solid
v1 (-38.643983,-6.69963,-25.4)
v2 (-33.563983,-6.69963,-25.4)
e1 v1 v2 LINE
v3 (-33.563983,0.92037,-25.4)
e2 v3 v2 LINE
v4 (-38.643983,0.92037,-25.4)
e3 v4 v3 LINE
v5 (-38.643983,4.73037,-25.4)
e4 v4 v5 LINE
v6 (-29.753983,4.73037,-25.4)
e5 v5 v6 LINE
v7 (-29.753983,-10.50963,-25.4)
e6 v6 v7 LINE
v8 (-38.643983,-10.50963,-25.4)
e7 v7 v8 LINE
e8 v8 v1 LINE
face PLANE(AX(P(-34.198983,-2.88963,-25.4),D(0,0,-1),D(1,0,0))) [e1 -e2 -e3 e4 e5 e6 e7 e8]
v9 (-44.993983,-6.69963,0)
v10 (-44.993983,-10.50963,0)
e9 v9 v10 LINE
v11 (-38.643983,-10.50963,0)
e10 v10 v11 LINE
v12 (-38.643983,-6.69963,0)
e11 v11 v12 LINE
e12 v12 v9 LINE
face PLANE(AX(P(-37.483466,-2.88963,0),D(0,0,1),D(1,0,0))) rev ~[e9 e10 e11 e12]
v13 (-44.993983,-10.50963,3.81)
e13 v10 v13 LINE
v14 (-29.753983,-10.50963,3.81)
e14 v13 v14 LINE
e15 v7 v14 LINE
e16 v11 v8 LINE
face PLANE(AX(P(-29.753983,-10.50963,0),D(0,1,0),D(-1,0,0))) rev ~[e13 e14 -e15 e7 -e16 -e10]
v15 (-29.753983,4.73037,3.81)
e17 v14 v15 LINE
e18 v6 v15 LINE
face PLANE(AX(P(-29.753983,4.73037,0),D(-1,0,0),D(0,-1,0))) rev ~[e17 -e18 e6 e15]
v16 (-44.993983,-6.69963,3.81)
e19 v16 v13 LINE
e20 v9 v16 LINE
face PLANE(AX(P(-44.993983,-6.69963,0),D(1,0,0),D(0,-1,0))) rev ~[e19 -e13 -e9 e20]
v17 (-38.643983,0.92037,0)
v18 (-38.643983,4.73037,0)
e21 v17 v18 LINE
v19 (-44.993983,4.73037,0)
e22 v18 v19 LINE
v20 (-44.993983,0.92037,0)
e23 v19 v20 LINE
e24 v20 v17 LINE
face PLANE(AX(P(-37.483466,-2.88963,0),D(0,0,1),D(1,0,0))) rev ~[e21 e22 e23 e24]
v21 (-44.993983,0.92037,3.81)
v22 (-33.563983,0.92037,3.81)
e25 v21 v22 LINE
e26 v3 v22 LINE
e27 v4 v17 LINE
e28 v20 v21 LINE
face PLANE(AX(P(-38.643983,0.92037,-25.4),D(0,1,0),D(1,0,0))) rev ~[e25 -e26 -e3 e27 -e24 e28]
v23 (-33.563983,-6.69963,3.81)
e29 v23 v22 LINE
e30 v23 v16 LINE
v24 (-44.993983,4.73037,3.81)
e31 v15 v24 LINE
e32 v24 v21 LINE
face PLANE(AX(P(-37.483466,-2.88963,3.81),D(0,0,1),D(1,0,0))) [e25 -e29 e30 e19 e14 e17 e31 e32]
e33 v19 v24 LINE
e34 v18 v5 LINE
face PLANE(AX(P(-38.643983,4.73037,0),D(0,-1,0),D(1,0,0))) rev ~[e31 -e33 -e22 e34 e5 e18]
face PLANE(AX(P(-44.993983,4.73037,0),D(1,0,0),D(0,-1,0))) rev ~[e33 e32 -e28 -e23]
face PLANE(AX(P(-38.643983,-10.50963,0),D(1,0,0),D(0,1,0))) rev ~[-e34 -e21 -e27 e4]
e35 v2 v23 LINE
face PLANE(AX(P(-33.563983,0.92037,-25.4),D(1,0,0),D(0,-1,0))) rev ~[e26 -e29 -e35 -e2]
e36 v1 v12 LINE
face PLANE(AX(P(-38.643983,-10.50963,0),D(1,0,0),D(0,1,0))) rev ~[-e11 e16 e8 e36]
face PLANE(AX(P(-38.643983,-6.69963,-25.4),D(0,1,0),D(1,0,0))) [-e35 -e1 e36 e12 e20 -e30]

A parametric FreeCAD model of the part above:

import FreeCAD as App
import Part
import Sketcher
Q = App.Units.Quantity


def add_polygon(sketch, points):
    """Adds a closed chain of lines whose ends are joined by coincident constraints."""
    first, n = sketch.GeometryCount, len(points)
    for a, b in zip(points, points[1:] + points[:1]):
        sketch.addGeometry(Part.LineSegment(App.Vector(*a, 0), App.Vector(*b, 0)), False)
    for i in range(n):
        sketch.addConstraint(Sketcher.Constraint("Coincident", first + i, 2, first + (i + 1) % n, 1))

doc = App.newDocument("Part")
body = doc.addObject("PartDesign::Body", "Body")

# Sketch on XY plane
sketch1 = body.newObject("Sketcher::SketchObject", "Sketch")
sketch1.AttachmentSupport = (doc.getObject("XY_Plane"), [""])
sketch1.MapMode = "FlatFace"
add_polygon(sketch1, [(-29.8, 4.7), (-45, 4.7), (-45, 0.9), (-38.6, 0.9), (-38.6, -6.7), (-45, -6.7), (-45, -10.5), (-29.8, -10.5)])  # lines 0-7
sketch1.addConstraint(Sketcher.Constraint("Horizontal", 0))
sketch1.addConstraint(Sketcher.Constraint("Vertical", 1))
sketch1.addConstraint(Sketcher.Constraint("Horizontal", 2))
sketch1.addConstraint(Sketcher.Constraint("Vertical", 3))
sketch1.addConstraint(Sketcher.Constraint("Horizontal", 4))
sketch1.addConstraint(Sketcher.Constraint("Vertical", 5))
sketch1.addConstraint(Sketcher.Constraint("Horizontal", 6))
sketch1.addConstraint(Sketcher.Constraint("Vertical", 7))
sketch1.addConstraint(Sketcher.Constraint("Vertical", 1, 2, 4, 2))
sketch1.addConstraint(Sketcher.Constraint("Equal", 1, 5))
sketch1.addConstraint(Sketcher.Constraint("Equal", 6, 7))
sketch1.addConstraint(Sketcher.Constraint("DistanceX", 0, 2, 0, 1, Q("0.6 in")))
sketch1.addConstraint(Sketcher.Constraint("DistanceY", 3, 2, 3, 1, Q("0.3 in")))
sketch1.addConstraint(Sketcher.Constraint("DistanceX", 2, 1, 2, 2, Q("0.25 in")))
sketch1.addConstraint(Sketcher.Constraint("DistanceY", -1, 1, 0, 2, 4.73037))
sketch1.addConstraint(Sketcher.Constraint("DistanceX", 0, 2, -1, 1, 44.993983))
pad1 = body.newObject("PartDesign::Pad", "Pad")
pad1.Profile = sketch1
pad1.Length = Q("0.15 in")

# Sketch on XY plane
sketch2 = body.newObject("Sketcher::SketchObject", "Sketch001")
sketch2.AttachmentSupport = (doc.getObject("XY_Plane"), [""])
sketch2.MapMode = "FlatFace"
add_polygon(sketch2, [(-30, -11), (-39, -11), (-39, 5), (-30, 5)])  # lines 0-3
sketch2.addConstraint(Sketcher.Constraint("Horizontal", 0))
sketch2.addConstraint(Sketcher.Constraint("Vertical", 1))
sketch2.addConstraint(Sketcher.Constraint("Horizontal", 2))
sketch2.addConstraint(Sketcher.Constraint("Vertical", 3))
sketch2.addConstraint(Sketcher.Constraint("DistanceY", 1, 1, 1, 2, Q("0.6 in")))
sketch2.addConstraint(Sketcher.Constraint("DistanceX", 0, 2, 0, 1, Q("0.35 in")))
sketch2.addConstraint(Sketcher.Constraint("DistanceY", 0, 2, -1, 1, 10.50963))
sketch2.addConstraint(Sketcher.Constraint("DistanceX", 0, 2, -1, 1, 38.643983))
pad2 = body.newObject("PartDesign::Pad", "Pad001")
pad2.Profile = sketch2
pad2.Length = Q("1 in")
pad2.Reversed = True

# Sketch on XY plane
sketch3 = body.newObject("Sketcher::SketchObject", "Sketch002")
sketch3.AttachmentSupport = (doc.getObject("XY_Plane"), [""])
sketch3.MapMode = "FlatFace"
sketch3.AttachmentOffset = App.Placement(App.Vector(0, 0, -1 * 25.4), App.Rotation())
add_polygon(sketch3, [(-39, -7), (-39, 1), (-34, 1), (-34, -7)])  # lines 0-3
sketch3.addConstraint(Sketcher.Constraint("Vertical", 0))
sketch3.addConstraint(Sketcher.Constraint("Horizontal", 1))
sketch3.addConstraint(Sketcher.Constraint("Vertical", 2))
sketch3.addConstraint(Sketcher.Constraint("Horizontal", 3))
sketch3.addConstraint(Sketcher.Constraint("DistanceX", 1, 1, 1, 2, Q("0.2 in")))
sketch3.addConstraint(Sketcher.Constraint("DistanceY", 0, 1, 0, 2, Q("0.3 in")))
sketch3.addConstraint(Sketcher.Constraint("DistanceY", -1, 1, 0, 2, 0.92037))
sketch3.addConstraint(Sketcher.Constraint("DistanceX", 0, 2, -1, 1, 38.643983))
pocket1 = body.newObject("PartDesign::Pocket", "Pocket")
pocket1.Profile = sketch3
pocket1.Length = Q("2 in")
pocket1.Reversed = True

doc.recompute()
